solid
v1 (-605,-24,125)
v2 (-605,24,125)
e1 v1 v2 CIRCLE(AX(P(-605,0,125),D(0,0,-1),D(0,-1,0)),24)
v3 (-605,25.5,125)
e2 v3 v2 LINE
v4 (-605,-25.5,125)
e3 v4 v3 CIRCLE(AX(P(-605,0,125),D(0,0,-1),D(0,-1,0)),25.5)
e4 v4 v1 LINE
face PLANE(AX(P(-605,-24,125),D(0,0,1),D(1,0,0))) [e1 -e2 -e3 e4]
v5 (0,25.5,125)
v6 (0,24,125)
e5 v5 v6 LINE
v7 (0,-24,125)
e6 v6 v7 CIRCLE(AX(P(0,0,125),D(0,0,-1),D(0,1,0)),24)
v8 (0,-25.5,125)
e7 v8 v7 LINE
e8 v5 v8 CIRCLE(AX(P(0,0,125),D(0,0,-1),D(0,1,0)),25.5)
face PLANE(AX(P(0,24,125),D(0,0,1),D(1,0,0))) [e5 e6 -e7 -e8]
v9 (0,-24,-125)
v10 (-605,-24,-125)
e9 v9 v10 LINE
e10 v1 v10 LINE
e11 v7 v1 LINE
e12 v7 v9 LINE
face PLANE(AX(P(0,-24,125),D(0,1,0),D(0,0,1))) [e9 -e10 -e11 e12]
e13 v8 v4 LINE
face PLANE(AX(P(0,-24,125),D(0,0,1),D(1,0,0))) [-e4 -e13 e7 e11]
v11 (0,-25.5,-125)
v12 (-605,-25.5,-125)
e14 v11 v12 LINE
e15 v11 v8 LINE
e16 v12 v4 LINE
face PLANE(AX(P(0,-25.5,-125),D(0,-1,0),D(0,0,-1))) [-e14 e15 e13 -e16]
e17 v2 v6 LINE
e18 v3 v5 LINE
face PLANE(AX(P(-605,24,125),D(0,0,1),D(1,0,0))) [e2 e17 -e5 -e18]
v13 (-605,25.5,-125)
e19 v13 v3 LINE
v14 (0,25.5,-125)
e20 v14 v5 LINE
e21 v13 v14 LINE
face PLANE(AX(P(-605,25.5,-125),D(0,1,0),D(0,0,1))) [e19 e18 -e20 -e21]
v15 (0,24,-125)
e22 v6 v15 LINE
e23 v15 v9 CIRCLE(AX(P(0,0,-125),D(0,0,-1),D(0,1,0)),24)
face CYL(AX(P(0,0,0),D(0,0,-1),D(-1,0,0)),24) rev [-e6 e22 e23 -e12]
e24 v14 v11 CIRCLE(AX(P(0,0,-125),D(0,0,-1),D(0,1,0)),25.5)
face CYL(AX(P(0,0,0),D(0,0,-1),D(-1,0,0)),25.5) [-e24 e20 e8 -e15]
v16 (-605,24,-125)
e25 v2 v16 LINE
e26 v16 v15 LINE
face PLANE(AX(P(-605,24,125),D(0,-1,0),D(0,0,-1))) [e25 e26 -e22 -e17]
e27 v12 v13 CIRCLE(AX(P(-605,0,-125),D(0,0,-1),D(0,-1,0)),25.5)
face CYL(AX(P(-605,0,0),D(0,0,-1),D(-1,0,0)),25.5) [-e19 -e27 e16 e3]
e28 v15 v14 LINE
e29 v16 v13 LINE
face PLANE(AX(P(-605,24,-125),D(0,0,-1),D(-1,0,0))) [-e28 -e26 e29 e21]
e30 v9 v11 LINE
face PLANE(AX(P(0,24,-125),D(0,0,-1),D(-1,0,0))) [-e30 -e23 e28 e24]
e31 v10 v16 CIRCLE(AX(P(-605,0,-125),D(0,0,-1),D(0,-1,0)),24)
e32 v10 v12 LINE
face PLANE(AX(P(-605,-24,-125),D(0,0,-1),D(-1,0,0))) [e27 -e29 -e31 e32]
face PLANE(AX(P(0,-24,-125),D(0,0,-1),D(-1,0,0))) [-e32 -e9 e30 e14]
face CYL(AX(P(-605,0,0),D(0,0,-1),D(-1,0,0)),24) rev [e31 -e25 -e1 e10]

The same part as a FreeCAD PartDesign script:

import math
import FreeCAD as App
import Part
import Sketcher
Q = App.Units.Quantity


def add_polygon(sketch, points):
    """Adds a closed chain of lines whose ends are joined by coincident constraints."""
    first, n = sketch.GeometryCount, len(points)
    for a, b in zip(points, points[1:] + points[:1]):
        sketch.addGeometry(Part.LineSegment(App.Vector(*a, 0), App.Vector(*b, 0)), False)
    for i in range(n):
        sketch.addConstraint(Sketcher.Constraint("Coincident", first + i, 2, first + (i + 1) % n, 1))

doc = App.newDocument("Part")
body = doc.addObject("PartDesign::Body", "Body")

# Sketch on YZ plane
sketch1 = body.newObject("Sketcher::SketchObject", "Sketch")
sketch1.AttachmentSupport = (doc.getObject("YZ_Plane"), [""])
sketch1.MapMode = "FlatFace"
sketch1.AttachmentOffset = App.Placement(App.Vector(0, 0, -605), App.Rotation())
add_polygon(sketch1, [(25.5, 125), (24, 125), (24, -125), (25.5, -125)])  # lines 0-3
sketch1.addConstraint(Sketcher.Constraint("Horizontal", 0))
sketch1.addConstraint(Sketcher.Constraint("Vertical", 1))
sketch1.addConstraint(Sketcher.Constraint("Horizontal", 2))
sketch1.addConstraint(Sketcher.Constraint("Vertical", 3))
sketch1.addConstraint(Sketcher.Constraint("DistanceY", 1, 2, 1, 1, Q("250 mm")))
sketch1.addConstraint(Sketcher.Constraint("DistanceX", 0, 2, 0, 1, Q("1.5 mm")))
sketch1.addConstraint(Sketcher.Constraint("DistanceX", -1, 1, 0, 2, Q("24 mm")))
sketch1.addConstraint(Sketcher.Constraint("DistanceY", -1, 1, 0, 2, Q("125 mm")))

# Sketch on XY plane
sketch2 = body.newObject("Sketcher::SketchObject", "Sketch001")
sketch2.AttachmentSupport = (doc.getObject("XY_Plane"), [""])
sketch2.MapMode = "FlatFace"
sketch2.addGeometry(Part.LineSegment(App.Vector(0, -24, 0), App.Vector(-605, -24, 0)), False)
sketch2.addGeometry(Part.ArcOfCircle(Part.Circle(App.Vector(-605, 0, 0), App.Vector(0, 0, 1), 24), math.radians(90), math.radians(270)), False)
sketch2.addGeometry(Part.LineSegment(App.Vector(-605, 24, 0), App.Vector(0, 24, 0)), False)
sketch2.addGeometry(Part.ArcOfCircle(Part.Circle(App.Vector(0, 0, 0), App.Vector(0, 0, 1), 24), math.radians(-90), math.radians(90)), False)
sketch2.addConstraint(Sketcher.Constraint("Tangent", 0, 2, 1, 2))
sketch2.addConstraint(Sketcher.Constraint("Tangent", 1, 1, 2, 1))
sketch2.addConstraint(Sketcher.Constraint("Tangent", 2, 2, 3, 2))
sketch2.addConstraint(Sketcher.Constraint("Tangent", 3, 1, 0, 1))
sketch2.addConstraint(Sketcher.Constraint("Horizontal", 0))
sketch2.addConstraint(Sketcher.Constraint("Horizontal", 2))
sketch2.addConstraint(Sketcher.Constraint("Coincident", 3, 3, -1, 1))
sketch2.addConstraint(Sketcher.Constraint("Radius", 1, Q("24 mm")))
sketch2.addConstraint(Sketcher.Constraint("DistanceX", 0, 2, 0, 1, Q("605 mm")))
doc.recompute()

additivepipe = body.newObject("PartDesign::AdditivePipe", "AdditivePipe")
additivepipe.Profile = sketch1
additivepipe.Spine = (sketch2, ["Edge1", "Edge2", "Edge3", "Edge4"])

doc.recompute()
